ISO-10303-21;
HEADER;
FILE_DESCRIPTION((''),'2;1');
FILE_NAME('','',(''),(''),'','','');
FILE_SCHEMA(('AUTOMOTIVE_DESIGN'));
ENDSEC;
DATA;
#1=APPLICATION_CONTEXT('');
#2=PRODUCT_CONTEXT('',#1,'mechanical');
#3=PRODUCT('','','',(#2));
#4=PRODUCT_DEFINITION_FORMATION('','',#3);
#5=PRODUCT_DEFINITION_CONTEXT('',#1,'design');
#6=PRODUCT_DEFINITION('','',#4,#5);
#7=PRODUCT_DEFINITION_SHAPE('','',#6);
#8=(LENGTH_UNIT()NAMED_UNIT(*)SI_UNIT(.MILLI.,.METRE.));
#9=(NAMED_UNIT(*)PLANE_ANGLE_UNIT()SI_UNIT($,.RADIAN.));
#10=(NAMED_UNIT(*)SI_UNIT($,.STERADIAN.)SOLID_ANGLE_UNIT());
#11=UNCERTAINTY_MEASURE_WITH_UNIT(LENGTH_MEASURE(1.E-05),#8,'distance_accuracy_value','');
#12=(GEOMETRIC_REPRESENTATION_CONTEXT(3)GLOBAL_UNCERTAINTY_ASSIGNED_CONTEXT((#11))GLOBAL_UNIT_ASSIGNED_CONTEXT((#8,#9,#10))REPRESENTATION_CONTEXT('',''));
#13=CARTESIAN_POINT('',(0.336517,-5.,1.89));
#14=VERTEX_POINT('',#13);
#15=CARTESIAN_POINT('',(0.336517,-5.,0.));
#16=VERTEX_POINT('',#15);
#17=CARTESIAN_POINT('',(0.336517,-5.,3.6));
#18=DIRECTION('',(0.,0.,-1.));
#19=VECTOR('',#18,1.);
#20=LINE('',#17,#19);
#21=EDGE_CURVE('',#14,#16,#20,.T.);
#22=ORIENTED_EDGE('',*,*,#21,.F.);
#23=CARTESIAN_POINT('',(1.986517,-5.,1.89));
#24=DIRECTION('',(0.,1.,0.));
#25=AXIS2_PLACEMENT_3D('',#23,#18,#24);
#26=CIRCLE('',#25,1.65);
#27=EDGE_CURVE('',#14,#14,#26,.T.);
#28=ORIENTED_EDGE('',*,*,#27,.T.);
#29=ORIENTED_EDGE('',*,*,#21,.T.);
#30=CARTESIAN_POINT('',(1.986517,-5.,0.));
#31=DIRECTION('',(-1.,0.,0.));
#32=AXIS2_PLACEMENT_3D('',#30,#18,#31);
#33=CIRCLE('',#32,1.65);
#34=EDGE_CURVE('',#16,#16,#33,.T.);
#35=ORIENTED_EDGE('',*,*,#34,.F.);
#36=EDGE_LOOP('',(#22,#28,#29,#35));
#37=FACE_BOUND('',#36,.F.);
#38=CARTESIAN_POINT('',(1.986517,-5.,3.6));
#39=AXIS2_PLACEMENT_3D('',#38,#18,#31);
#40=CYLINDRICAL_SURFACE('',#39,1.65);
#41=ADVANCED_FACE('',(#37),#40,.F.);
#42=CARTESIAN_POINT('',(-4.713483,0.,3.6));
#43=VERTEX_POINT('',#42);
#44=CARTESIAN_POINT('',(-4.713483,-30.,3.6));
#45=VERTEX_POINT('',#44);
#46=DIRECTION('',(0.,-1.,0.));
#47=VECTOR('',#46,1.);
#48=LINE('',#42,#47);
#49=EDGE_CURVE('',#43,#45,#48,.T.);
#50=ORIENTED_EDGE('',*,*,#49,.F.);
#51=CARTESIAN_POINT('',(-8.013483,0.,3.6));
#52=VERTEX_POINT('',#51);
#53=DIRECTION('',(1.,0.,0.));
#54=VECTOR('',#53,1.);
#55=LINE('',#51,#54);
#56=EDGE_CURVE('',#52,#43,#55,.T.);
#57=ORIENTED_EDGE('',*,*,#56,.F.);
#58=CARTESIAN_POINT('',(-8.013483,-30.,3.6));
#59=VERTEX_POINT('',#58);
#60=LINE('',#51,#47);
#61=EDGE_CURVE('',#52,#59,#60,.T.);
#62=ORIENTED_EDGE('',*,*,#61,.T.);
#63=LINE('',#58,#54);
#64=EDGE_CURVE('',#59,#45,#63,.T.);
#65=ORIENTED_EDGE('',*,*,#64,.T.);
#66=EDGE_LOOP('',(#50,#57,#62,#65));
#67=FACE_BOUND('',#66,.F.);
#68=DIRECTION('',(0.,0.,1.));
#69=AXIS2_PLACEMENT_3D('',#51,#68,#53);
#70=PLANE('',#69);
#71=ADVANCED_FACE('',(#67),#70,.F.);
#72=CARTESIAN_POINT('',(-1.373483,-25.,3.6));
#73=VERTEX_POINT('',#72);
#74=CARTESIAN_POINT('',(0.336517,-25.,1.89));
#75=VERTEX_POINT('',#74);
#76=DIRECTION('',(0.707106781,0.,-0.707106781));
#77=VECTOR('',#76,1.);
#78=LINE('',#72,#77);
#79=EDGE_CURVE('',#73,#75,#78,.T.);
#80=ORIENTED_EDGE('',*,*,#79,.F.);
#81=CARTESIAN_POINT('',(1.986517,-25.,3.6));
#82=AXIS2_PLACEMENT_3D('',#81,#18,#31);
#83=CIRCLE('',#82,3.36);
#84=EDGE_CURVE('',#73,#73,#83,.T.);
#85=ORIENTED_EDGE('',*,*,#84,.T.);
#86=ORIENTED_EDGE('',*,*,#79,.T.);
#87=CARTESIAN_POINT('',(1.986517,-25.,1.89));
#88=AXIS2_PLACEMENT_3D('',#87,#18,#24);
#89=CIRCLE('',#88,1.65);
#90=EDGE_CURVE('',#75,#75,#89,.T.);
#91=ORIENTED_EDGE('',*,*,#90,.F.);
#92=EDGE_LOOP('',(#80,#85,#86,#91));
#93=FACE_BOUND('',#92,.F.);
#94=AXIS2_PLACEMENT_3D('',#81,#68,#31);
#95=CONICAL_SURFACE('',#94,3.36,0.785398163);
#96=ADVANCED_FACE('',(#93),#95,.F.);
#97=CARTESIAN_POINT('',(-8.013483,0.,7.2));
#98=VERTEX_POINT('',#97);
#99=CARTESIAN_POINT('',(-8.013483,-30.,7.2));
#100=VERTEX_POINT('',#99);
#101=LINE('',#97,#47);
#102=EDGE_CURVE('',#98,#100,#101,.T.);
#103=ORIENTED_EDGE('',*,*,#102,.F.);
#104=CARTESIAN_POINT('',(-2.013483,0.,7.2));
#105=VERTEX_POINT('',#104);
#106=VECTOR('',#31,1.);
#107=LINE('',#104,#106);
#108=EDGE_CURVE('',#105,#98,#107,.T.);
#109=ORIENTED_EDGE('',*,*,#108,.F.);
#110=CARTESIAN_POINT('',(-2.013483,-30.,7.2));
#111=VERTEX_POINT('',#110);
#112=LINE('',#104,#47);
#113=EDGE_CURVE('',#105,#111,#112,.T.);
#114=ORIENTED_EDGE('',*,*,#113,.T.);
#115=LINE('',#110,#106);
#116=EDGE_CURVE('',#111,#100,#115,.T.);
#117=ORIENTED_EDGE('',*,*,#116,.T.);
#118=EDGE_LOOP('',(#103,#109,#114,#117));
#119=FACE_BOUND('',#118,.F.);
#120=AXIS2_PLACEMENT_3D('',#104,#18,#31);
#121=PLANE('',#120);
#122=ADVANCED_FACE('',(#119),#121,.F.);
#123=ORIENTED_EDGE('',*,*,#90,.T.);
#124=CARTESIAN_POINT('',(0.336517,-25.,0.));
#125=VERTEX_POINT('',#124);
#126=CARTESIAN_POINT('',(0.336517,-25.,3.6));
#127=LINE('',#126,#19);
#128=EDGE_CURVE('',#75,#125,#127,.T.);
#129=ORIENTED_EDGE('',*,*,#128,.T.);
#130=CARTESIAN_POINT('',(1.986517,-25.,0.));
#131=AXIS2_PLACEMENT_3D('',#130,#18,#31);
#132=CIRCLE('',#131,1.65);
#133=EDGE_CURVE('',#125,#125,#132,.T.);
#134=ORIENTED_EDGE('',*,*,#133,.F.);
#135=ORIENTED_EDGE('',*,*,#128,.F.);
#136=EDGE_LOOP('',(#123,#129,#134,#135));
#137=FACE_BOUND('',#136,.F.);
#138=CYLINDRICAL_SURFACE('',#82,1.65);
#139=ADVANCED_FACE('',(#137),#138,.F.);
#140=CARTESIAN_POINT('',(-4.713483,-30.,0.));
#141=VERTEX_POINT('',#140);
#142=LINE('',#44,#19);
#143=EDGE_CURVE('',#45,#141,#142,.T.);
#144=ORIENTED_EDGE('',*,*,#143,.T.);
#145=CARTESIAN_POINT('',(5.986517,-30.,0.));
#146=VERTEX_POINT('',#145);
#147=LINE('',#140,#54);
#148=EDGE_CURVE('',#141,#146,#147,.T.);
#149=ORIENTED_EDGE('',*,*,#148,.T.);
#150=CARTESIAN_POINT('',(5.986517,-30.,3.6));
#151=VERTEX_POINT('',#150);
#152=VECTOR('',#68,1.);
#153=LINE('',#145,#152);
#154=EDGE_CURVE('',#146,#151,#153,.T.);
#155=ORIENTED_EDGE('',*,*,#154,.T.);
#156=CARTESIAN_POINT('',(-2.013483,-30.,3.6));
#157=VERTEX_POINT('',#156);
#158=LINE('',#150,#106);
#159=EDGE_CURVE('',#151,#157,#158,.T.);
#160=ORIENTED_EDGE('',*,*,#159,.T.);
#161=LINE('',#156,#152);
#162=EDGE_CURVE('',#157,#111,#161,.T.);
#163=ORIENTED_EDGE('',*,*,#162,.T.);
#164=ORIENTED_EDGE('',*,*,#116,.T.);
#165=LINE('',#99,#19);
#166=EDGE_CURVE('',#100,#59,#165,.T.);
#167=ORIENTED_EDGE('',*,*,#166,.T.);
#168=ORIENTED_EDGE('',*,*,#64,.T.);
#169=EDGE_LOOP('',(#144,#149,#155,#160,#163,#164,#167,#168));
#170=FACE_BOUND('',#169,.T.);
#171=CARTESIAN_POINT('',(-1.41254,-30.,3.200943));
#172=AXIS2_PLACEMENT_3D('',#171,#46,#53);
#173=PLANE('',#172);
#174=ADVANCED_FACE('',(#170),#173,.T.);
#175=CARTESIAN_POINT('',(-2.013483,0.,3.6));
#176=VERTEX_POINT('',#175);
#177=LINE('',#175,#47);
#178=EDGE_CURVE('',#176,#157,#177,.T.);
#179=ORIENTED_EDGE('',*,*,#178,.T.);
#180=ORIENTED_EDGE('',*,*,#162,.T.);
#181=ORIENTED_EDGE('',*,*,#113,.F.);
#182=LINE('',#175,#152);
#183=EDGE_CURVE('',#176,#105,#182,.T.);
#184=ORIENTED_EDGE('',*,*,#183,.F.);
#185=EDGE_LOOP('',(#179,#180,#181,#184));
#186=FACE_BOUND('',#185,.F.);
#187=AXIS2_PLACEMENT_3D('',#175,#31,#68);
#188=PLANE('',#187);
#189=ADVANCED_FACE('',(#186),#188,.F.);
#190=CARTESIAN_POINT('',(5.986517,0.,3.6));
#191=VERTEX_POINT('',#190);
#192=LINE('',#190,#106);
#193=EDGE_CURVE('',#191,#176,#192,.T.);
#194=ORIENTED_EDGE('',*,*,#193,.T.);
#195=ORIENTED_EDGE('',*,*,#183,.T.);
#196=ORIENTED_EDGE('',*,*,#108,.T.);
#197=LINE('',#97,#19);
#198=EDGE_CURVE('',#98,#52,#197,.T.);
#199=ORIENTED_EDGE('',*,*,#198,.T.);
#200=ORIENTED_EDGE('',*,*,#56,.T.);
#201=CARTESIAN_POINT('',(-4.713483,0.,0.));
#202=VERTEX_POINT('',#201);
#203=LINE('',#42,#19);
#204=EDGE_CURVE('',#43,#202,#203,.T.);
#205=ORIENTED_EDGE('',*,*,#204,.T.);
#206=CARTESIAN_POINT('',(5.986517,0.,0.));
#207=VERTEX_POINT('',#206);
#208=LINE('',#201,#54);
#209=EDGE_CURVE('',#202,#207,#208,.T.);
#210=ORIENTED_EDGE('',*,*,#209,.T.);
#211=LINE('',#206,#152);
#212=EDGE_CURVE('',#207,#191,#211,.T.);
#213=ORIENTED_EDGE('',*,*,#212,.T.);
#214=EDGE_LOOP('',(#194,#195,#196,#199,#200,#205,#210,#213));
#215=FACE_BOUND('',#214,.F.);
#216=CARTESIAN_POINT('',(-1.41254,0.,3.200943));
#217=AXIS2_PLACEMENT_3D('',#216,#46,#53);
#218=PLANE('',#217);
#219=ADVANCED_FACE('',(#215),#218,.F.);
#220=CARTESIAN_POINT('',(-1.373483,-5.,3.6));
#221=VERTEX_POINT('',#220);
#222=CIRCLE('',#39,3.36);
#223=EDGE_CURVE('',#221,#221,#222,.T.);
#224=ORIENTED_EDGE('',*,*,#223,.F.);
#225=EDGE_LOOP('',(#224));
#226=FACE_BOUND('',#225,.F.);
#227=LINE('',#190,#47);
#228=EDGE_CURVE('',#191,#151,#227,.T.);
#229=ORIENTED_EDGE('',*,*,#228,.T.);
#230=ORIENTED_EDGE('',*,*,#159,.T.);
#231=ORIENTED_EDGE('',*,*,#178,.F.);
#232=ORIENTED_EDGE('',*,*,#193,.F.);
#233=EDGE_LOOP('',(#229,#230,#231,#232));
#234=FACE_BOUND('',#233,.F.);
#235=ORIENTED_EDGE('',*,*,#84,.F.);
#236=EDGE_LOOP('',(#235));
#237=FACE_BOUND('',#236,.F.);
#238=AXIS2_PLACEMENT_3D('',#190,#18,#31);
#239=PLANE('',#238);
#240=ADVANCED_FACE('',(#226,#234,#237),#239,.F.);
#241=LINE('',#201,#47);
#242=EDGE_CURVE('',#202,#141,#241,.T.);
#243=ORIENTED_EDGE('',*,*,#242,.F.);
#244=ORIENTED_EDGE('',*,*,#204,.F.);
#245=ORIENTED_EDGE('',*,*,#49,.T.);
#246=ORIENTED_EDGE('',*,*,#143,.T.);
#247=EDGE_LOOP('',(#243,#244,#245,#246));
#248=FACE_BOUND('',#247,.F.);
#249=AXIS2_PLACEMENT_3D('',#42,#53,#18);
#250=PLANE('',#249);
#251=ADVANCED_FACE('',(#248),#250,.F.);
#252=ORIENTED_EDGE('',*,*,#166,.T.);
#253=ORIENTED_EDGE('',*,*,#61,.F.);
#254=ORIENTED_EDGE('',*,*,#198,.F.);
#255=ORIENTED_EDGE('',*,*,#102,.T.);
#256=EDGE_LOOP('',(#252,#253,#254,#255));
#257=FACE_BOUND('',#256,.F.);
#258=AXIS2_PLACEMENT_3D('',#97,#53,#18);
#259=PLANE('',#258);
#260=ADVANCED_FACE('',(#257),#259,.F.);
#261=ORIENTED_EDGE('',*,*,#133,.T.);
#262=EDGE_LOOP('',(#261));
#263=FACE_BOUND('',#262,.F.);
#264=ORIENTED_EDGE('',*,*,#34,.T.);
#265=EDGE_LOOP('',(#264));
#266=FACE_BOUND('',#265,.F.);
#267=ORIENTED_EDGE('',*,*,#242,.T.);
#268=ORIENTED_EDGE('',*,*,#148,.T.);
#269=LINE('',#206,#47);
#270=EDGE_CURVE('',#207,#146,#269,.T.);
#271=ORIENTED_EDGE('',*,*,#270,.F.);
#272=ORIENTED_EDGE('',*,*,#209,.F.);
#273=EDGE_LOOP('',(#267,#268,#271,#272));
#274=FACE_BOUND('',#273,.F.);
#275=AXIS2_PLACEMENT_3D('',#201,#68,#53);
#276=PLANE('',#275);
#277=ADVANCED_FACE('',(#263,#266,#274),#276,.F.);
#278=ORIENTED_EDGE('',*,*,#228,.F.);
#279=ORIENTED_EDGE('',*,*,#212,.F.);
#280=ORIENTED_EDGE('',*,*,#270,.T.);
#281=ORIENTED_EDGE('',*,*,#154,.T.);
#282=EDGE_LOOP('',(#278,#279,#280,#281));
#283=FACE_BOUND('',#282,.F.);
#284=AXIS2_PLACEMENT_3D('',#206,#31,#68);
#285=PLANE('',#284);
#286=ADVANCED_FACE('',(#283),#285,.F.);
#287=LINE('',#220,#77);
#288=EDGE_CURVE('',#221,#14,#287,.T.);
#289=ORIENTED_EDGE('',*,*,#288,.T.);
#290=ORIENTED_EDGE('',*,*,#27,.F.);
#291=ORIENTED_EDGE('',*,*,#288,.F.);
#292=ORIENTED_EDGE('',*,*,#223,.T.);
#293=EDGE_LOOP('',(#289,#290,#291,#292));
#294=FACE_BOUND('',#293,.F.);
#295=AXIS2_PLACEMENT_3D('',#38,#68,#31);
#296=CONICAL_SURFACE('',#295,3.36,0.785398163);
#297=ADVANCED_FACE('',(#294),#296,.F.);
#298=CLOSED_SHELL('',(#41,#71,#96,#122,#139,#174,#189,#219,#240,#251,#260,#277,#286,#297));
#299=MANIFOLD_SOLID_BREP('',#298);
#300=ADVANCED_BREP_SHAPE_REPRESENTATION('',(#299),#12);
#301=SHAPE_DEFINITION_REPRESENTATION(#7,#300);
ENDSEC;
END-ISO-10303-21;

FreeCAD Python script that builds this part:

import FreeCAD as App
import Part
import Sketcher
from FreeCAD import Vector
Q = App.Units.Quantity


def add_polygon(sketch, points):
    """Adds a closed chain of lines whose ends are joined by coincident constraints."""
    first, n = sketch.GeometryCount, len(points)
    for a, b in zip(points, points[1:] + points[:1]):
        sketch.addGeometry(Part.LineSegment(App.Vector(*a, 0), App.Vector(*b, 0)), False)
    for i in range(n):
        sketch.addConstraint(Sketcher.Constraint("Coincident", first + i, 2, first + (i + 1) % n, 1))

doc = App.newDocument("Part")
body = doc.addObject("PartDesign::Body", "Body")

sketch1 = body.newObject("Sketcher::SketchObject", "Sketch")
sketch1.AttachmentSupport = (doc.getObject("XZ_Plane"), [""])
sketch1.MapMode = "FlatFace"
add_polygon(sketch1, [(-4.7, 0), (6, 0), (6, 3.6), (-2, 3.6), (-2, 7.2), (-8, 7.2), (-8, 3.6), (-4.7, 3.6)])
sketch1.addConstraint(Sketcher.Constraint("Horizontal", 0))
sketch1.addConstraint(Sketcher.Constraint("Vertical", 1))
sketch1.addConstraint(Sketcher.Constraint("Horizontal", 2))
sketch1.addConstraint(Sketcher.Constraint("Vertical", 3))
sketch1.addConstraint(Sketcher.Constraint("Horizontal", 4))
sketch1.addConstraint(Sketcher.Constraint("Vertical", 5))
sketch1.addConstraint(Sketcher.Constraint("Horizontal", 6))
sketch1.addConstraint(Sketcher.Constraint("Vertical", 7))
sketch1.addConstraint(Sketcher.Constraint("PointOnObject", 0, 2, -1))
sketch1.addConstraint(Sketcher.Constraint("Horizontal", 2, 2, 5, 2))
sketch1.addConstraint(Sketcher.Constraint("Equal", 1, 3))
sketch1.addConstraint(Sketcher.Constraint("DistanceX", 2, 2, 2, 1, Q("8 mm")))
sketch1.addConstraint(Sketcher.Constraint("DistanceX", 4, 2, 4, 1, Q("6 mm")))
sketch1.addConstraint(Sketcher.Constraint("DistanceX", 0, 1, 0, 2, Q("10.7 mm")))
sketch1.addConstraint(Sketcher.Constraint("DistanceY", 1, 1, 1, 2, Q("3.6 mm")))
sketch1.addConstraint(Sketcher.Constraint("DistanceX", -1, 1, 0, 2, Q("5.986517 mm")))
pad1 = body.newObject("PartDesign::Pad", "Pad")
pad1.Profile = sketch1
pad1.Length = 30

sketch2 = body.newObject("Sketcher::SketchObject", "Sketch001")
sketch2.AttachmentSupport = (doc.getObject("XY_Plane"), [""])
sketch2.MapMode = "FlatFace"
sketch2.AttachmentOffset = App.Placement(Vector(0, 0, 3.6), App.Rotation())
sketch2.addGeometry(Part.Circle(Vector(2, -5, 0), Vector(0, 0, 1), 1.6), False)
sketch2.addGeometry(Part.Circle(Vector(2, -25, 0), Vector(0, 0, 1), 1.6), False)
sketch2.addConstraint(Sketcher.Constraint("Equal", 0, 1))
sketch2.addConstraint(Sketcher.Constraint("Vertical", 0, 3, 1, 3))
sketch2.addConstraint(Sketcher.Constraint("Diameter", 0, Q("3.3 mm")))
sketch2.addConstraint(Sketcher.Constraint("DistanceY", 0, 3, -1, 1, Q("5 mm")))
sketch2.addConstraint(Sketcher.Constraint("DistanceY", 1, 3, -1, 1, Q("25 mm")))
sketch2.addConstraint(Sketcher.Constraint("DistanceX", -1, 1, 0, 3, Q("1.986517 mm")))
doc.recompute()
hole = body.newObject("PartDesign::Hole", "Hole")
hole.Profile = sketch2
hole.ThreadType = "None"
hole.Diameter = 3.3
hole.DepthType = "ThroughAll"
hole.HoleCutType = "Countersink"
hole.HoleCutDiameter = 6.72
hole.HoleCutCountersinkAngle = 90

doc.recompute()
